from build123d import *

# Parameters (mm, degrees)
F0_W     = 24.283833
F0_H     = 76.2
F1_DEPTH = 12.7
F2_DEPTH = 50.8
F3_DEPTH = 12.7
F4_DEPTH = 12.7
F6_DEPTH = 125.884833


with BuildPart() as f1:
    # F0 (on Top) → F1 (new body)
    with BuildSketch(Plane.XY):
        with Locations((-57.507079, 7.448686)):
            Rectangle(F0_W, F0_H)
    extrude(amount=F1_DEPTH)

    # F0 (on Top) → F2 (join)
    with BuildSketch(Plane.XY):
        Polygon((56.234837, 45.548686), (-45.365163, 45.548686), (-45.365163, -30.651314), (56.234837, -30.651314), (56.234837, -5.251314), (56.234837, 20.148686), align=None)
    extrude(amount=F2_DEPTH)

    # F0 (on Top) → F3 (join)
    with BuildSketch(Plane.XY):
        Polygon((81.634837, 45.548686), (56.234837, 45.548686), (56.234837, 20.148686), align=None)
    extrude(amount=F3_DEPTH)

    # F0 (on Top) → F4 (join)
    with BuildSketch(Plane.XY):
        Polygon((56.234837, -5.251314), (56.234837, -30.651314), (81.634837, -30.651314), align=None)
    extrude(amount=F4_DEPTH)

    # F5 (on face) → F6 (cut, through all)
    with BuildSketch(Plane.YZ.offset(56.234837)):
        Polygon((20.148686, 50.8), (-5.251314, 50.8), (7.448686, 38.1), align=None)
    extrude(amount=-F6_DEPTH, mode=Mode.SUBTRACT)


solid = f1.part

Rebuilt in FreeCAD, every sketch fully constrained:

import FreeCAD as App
import Part
import Sketcher

V = App.Vector
Q = App.Units.Quantity


def add_polygon(sketch, points):
    """Adds a closed chain of lines whose ends are joined by coincident constraints."""
    first, n = sketch.GeometryCount, len(points)
    for a, b in zip(points, points[1:] + points[:1]):
        sketch.addGeometry(Part.LineSegment(App.Vector(*a, 0), App.Vector(*b, 0)), False)
    for i in range(n):
        sketch.addConstraint(Sketcher.Constraint("Coincident", first + i, 2, first + (i + 1) % n, 1))

doc = App.newDocument("Part")
body = doc.addObject("PartDesign::Body", "Body")

# Sketch on XY plane
sketch1 = body.newObject("Sketcher::SketchObject", "Sketch")
sketch1.AttachmentSupport = (doc.getObject("XY_Plane"), [""])
sketch1.MapMode = "FlatFace"
add_polygon(sketch1, [(-70, 46), (-70, -31), (-45, -31), (-45, 46)])  # lines 0-3
sketch1.addConstraint([
    Sketcher.Constraint("Vertical", 0),
    Sketcher.Constraint("Horizontal", 1),
    Sketcher.Constraint("Vertical", 2),
    Sketcher.Constraint("Horizontal", 3),
    Sketcher.Constraint("DistanceY", 0, 2, 0, 1, Q("3 in")),
    Sketcher.Constraint("DistanceX", 1, 1, 1, 2, 24.283833),
    Sketcher.Constraint("DistanceX", 0, 2, -1, 1, 69.648995),
    Sketcher.Constraint("DistanceY", 0, 2, -1, 1, 30.651314),
])
pad1 = body.newObject("PartDesign::Pad", "Pad")
pad1.Profile = sketch1
pad1.Length = Q("0.5 in")

# Sketch on XY plane
sketch2 = body.newObject("Sketcher::SketchObject", "Sketch001")
sketch2.AttachmentSupport = (doc.getObject("XY_Plane"), [""])
sketch2.MapMode = "FlatFace"
add_polygon(sketch2, [(56, 46), (-45, 46), (-45, -31), (56, -31)])  # lines 0-3
sketch2.addConstraint([
    Sketcher.Constraint("Horizontal", 0),
    Sketcher.Constraint("Vertical", 1),
    Sketcher.Constraint("Horizontal", 2),
    Sketcher.Constraint("Vertical", 3),
    Sketcher.Constraint("DistanceX", 0, 2, 0, 1, Q("4 in")),
    Sketcher.Constraint("DistanceY", 1, 2, 1, 1, Q("3 in")),
    Sketcher.Constraint("DistanceX", 0, 2, -1, 1, 45.365163),
    Sketcher.Constraint("DistanceY", -1, 1, 0, 2, 45.548686),
])
pad2 = body.newObject("PartDesign::Pad", "Pad001")
pad2.Profile = sketch2
pad2.Length = Q("2 in")

# Sketch on XY plane
sketch3 = body.newObject("Sketcher::SketchObject", "Sketch002")
sketch3.AttachmentSupport = (doc.getObject("XY_Plane"), [""])
sketch3.MapMode = "FlatFace"
add_polygon(sketch3, [(82, 46), (56, 46), (56, 20)])  # lines 0-2
sketch3.addConstraint([
    Sketcher.Constraint("Horizontal", 0),
    Sketcher.Constraint("Vertical", 1),
    Sketcher.Constraint("Equal", 0, 1),
    Sketcher.Constraint("DistanceX", 0, 2, 0, 1, Q("1 in")),
    Sketcher.Constraint("DistanceX", -1, 1, 0, 2, 56.234837),
    Sketcher.Constraint("DistanceY", -1, 1, 0, 2, 45.548686),
])
pad3 = body.newObject("PartDesign::Pad", "Pad002")
pad3.Profile = sketch3
pad3.Length = Q("0.5 in")

# Sketch on XY plane
sketch4 = body.newObject("Sketcher::SketchObject", "Sketch003")
sketch4.AttachmentSupport = (doc.getObject("XY_Plane"), [""])
sketch4.MapMode = "FlatFace"
add_polygon(sketch4, [(56, -5), (56, -31), (82, -31)])  # lines 0-2
sketch4.addConstraint([
    Sketcher.Constraint("Vertical", 0),
    Sketcher.Constraint("Horizontal", 1),
    Sketcher.Constraint("Equal", 1, 0),
    Sketcher.Constraint("DistanceX", 1, 1, 1, 2, Q("1 in")),
    Sketcher.Constraint("DistanceX", -1, 1, 0, 2, 56.234837),
    Sketcher.Constraint("DistanceY", 0, 2, -1, 1, 30.651314),
])
pad4 = body.newObject("PartDesign::Pad", "Pad003")
pad4.Profile = sketch4
pad4.Length = Q("0.5 in")

# Sketch on YZ plane
sketch5 = body.newObject("Sketcher::SketchObject", "Sketch004")
sketch5.AttachmentSupport = (doc.getObject("YZ_Plane"), [""])
sketch5.MapMode = "FlatFace"
sketch5.AttachmentOffset = App.Placement(V(0, 0, 56.234837), App.Rotation())
add_polygon(sketch5, [(20, 51), (-5, 51), (7, 38)])  # lines 0-2
sketch5.addConstraint([
    Sketcher.Constraint("Horizontal", 0),
    Sketcher.Constraint("Perpendicular", 1, 2),
    Sketcher.Constraint("Equal", 1, 2),
    Sketcher.Constraint("DistanceX", 0, 2, 0, 1, Q("1 in")),
    Sketcher.Constraint("DistanceY", -1, 1, 0, 2, Q("2 in")),
    Sketcher.Constraint("DistanceX", 0, 2, -1, 1, 5.251314),
])
pocket1 = body.newObject("PartDesign::Pocket", "Pocket")
pocket1.Profile = sketch5
pocket1.Type = "ThroughAll"

doc.recompute()
